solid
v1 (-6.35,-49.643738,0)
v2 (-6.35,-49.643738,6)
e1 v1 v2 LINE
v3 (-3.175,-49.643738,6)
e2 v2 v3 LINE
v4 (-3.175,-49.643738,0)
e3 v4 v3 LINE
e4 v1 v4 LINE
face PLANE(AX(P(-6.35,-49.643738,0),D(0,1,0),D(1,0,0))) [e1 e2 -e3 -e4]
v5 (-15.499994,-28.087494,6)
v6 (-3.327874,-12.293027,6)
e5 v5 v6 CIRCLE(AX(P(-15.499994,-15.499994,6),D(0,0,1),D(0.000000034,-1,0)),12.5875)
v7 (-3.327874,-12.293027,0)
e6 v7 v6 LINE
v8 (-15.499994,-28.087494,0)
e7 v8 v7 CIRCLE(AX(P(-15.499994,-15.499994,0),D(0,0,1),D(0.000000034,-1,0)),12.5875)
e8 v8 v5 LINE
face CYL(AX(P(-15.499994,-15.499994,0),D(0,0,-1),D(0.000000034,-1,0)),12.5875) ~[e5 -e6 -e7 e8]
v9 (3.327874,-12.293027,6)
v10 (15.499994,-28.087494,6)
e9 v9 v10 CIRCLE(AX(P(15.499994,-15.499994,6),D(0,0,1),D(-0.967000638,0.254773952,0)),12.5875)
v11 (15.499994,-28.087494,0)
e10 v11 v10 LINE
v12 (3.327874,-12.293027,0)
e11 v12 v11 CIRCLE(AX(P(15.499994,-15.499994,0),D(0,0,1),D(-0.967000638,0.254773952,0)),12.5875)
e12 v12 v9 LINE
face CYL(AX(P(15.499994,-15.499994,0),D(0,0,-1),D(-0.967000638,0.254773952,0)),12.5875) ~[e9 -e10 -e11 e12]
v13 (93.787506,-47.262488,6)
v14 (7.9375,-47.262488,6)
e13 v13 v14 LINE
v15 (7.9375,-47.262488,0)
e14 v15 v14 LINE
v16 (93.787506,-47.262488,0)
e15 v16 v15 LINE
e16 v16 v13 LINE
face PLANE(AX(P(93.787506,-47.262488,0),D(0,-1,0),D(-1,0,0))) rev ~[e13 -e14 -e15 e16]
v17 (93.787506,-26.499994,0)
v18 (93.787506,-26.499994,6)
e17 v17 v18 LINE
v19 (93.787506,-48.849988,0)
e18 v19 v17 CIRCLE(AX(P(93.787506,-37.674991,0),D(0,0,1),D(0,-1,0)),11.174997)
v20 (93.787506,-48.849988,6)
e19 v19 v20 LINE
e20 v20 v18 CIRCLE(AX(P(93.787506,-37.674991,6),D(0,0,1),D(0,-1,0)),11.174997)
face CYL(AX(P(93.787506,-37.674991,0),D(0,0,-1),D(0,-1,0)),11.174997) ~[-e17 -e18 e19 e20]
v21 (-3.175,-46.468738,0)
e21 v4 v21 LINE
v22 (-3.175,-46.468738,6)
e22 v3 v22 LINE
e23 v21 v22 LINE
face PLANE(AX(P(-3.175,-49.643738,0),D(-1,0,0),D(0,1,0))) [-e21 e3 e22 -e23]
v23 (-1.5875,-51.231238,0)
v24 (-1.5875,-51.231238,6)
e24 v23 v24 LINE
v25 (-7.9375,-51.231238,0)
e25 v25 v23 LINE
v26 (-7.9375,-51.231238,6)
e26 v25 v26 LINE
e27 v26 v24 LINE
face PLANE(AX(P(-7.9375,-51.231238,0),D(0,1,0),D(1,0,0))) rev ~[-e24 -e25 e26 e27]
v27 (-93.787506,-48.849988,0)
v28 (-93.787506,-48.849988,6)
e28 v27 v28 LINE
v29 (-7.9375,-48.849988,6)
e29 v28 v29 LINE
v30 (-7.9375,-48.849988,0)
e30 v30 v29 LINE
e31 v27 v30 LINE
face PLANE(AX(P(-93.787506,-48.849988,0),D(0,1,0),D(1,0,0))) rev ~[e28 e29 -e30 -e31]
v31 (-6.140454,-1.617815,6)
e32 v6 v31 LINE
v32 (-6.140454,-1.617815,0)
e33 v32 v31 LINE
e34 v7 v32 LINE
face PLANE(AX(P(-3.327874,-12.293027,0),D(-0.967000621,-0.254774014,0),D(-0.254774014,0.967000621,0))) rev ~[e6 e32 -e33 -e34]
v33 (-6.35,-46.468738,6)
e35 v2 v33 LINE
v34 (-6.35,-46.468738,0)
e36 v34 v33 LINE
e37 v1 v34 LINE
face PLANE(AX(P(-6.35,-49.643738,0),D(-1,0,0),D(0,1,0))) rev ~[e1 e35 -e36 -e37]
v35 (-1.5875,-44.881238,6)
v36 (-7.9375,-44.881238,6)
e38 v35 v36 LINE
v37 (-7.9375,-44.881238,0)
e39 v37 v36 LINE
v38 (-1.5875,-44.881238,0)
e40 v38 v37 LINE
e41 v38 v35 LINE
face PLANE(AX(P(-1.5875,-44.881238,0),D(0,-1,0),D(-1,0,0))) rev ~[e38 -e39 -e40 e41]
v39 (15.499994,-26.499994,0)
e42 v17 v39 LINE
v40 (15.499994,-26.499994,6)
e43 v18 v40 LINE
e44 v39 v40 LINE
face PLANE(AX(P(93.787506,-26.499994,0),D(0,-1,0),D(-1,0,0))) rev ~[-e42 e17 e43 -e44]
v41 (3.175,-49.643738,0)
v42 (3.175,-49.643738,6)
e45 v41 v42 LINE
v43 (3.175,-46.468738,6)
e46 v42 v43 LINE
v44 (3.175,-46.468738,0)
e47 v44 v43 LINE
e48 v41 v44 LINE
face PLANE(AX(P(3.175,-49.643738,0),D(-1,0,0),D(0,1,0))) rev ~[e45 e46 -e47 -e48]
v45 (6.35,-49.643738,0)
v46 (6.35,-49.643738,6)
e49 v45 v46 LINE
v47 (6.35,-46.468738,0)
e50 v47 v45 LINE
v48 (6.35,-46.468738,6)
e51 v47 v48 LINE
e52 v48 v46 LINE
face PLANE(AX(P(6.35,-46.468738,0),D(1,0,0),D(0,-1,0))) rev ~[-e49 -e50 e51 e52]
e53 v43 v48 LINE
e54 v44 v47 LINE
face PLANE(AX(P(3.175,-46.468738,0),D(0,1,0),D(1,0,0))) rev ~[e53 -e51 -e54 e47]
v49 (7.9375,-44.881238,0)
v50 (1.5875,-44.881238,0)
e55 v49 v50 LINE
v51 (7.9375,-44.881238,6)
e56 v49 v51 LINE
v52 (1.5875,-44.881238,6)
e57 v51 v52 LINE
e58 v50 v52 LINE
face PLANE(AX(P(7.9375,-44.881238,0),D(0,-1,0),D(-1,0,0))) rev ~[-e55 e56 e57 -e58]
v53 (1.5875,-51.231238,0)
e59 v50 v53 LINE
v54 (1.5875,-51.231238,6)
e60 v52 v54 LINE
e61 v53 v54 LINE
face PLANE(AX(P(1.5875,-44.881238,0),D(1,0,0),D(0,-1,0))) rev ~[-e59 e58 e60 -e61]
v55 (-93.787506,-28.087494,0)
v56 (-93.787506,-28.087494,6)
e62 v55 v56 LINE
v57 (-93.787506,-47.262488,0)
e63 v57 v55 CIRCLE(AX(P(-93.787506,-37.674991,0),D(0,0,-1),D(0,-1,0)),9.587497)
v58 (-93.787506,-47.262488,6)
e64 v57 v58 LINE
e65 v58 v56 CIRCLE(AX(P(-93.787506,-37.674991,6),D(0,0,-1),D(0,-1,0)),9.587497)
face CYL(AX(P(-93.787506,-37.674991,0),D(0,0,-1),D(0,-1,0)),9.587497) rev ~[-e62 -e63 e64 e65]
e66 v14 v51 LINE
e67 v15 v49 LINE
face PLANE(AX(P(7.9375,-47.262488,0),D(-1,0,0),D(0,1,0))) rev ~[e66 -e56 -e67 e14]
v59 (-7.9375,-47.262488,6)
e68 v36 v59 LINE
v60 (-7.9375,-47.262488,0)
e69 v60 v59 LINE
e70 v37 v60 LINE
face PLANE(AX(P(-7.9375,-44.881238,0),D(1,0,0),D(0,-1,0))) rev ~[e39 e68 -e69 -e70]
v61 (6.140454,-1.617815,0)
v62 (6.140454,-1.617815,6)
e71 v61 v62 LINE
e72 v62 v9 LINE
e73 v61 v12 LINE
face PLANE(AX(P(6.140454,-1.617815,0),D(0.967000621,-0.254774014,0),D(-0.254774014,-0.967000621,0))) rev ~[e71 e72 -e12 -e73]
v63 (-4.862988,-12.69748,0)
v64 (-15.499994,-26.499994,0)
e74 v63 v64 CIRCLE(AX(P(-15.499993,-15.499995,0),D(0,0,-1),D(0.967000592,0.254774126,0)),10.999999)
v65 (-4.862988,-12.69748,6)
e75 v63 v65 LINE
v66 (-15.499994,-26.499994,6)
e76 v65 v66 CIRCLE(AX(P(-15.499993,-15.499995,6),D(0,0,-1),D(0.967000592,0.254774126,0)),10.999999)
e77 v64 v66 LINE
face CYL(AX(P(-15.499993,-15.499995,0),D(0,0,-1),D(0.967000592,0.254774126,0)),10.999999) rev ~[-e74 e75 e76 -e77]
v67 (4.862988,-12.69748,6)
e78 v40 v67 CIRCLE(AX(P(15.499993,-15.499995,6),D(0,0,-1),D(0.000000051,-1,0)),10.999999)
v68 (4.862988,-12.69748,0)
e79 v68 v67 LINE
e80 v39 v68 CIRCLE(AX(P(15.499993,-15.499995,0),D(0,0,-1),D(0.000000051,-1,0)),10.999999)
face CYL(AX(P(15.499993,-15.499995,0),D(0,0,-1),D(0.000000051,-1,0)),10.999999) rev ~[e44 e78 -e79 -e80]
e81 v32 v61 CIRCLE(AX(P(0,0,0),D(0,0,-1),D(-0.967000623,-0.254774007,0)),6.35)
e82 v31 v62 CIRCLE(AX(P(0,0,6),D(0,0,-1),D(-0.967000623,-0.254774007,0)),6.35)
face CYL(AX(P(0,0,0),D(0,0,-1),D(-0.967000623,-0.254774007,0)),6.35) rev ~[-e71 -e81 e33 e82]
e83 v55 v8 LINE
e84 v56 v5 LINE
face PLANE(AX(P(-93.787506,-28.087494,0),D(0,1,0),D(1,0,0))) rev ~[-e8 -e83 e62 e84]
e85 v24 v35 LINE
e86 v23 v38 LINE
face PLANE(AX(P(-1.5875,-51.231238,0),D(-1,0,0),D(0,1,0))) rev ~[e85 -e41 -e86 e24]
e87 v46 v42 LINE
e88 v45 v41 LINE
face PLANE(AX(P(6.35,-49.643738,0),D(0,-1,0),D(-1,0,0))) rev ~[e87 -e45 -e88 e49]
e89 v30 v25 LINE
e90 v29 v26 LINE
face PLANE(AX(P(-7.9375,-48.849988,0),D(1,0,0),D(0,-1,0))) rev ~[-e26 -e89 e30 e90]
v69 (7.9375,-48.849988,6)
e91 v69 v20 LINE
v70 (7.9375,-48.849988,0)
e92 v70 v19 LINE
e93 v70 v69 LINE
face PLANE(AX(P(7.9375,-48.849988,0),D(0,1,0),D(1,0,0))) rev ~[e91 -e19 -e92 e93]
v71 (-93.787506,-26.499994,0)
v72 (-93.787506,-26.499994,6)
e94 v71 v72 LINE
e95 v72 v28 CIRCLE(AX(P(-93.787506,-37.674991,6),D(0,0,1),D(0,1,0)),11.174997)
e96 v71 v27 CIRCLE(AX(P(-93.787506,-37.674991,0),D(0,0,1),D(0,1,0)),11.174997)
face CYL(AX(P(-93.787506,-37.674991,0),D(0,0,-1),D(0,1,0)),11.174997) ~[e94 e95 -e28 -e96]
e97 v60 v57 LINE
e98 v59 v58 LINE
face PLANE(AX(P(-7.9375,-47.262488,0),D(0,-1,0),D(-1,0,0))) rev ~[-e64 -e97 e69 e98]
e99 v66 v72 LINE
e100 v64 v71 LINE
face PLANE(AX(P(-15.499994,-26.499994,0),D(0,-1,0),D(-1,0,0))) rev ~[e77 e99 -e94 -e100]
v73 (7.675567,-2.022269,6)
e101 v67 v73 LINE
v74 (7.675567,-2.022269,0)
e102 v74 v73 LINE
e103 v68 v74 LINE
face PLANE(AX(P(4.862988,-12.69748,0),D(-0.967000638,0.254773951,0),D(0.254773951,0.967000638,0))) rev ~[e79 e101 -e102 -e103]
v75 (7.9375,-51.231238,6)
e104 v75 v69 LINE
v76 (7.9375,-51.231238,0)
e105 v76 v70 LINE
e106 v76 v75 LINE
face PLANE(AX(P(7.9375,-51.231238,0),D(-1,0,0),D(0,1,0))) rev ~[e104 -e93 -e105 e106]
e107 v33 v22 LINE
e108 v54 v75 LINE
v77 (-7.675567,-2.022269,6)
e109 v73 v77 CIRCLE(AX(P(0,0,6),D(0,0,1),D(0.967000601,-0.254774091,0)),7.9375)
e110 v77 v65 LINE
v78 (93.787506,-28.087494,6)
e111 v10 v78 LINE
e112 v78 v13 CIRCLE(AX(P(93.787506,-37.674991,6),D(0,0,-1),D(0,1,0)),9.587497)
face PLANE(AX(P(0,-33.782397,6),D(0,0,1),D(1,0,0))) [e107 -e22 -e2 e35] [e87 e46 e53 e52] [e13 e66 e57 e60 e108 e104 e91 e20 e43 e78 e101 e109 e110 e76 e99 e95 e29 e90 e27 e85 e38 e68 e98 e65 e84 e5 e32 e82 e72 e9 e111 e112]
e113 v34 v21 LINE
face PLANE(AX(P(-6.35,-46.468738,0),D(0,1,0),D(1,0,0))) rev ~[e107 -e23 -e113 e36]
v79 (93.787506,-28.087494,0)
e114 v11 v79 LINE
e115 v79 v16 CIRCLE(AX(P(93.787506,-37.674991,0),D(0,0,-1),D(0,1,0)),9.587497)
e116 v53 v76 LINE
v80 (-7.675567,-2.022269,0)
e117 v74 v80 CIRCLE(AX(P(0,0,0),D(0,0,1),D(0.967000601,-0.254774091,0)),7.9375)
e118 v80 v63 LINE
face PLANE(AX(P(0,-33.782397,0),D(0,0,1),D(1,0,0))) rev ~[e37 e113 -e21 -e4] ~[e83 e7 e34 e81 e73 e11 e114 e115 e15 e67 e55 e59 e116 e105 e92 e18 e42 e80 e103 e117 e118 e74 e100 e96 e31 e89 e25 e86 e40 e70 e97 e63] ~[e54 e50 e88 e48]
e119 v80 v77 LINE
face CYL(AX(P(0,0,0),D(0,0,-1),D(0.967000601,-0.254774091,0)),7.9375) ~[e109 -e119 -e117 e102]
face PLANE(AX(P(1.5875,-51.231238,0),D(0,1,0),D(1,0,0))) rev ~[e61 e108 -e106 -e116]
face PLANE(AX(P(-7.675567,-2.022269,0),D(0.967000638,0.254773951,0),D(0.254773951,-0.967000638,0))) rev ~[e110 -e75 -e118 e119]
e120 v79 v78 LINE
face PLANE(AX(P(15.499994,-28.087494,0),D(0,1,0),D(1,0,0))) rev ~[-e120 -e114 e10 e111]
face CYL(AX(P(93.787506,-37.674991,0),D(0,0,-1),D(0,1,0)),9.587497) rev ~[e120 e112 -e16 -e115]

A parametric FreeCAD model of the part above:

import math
import FreeCAD as App
import Part
import Sketcher
from FreeCAD import Vector
Q = App.Units.Quantity

doc = App.newDocument("Part")
params = doc.addObject("Spreadsheet::Sheet", "Params")
for row, (alias, value) in enumerate([
    ("sketch1_radius", "0.25 in"),
    ("sketch1_radius2", "0.3125 in"),
    ("sketch1_width", "0.25 in"),
    ("sketch1_width2", "0.125 in"),
    ("pad1_length", "6 mm"),
], start=1):
    params.set(f"A{row}", alias)
    params.set(f"B{row}", "=" + value)
    params.setAlias(f"B{row}", alias)

body = doc.addObject("PartDesign::Body", "Body")

sketch1 = body.newObject("Sketcher::SketchObject", "Sketch")
sketch1.AttachmentSupport = (doc.getObject("XY_Plane"), [""])
sketch1.MapMode = "FlatFace"
sketch1.addGeometry([
    Part.ArcOfCircle(Part.Circle(Vector(0, 0, 0), Vector(0, 0, 1), 6.4), math.radians(-15), math.radians(195)),
    Part.LineSegment(Vector(6.1, -1.6, 0), Vector(3.3, -12.3, 0)),
    Part.ArcOfCircle(Part.Circle(Vector(15.5, -15.5, 0), Vector(0, 0, 1), 12.6), math.radians(165), math.radians(270)),
    Part.LineSegment(Vector(15.5, -28.1, 0), Vector(93.8, -28.1, 0)),
    Part.ArcOfCircle(Part.Circle(Vector(93.8, -37.7, 0), Vector(0, 0, 1), 9.6), math.radians(-90), math.radians(90)),
    Part.LineSegment(Vector(93.8, -47.3, 0), Vector(7.9, -47.3, 0)),
    Part.LineSegment(Vector(7.9, -47.3, 0), Vector(7.9, -44.9, 0)),
    Part.LineSegment(Vector(7.9, -44.9, 0), Vector(1.6, -44.9, 0)),
    Part.LineSegment(Vector(1.6, -44.9, 0), Vector(1.6, -51.2, 0)),
    Part.LineSegment(Vector(1.6, -51.2, 0), Vector(7.9, -51.2, 0)),
    Part.LineSegment(Vector(7.9, -51.2, 0), Vector(7.9, -48.8, 0)),
    Part.LineSegment(Vector(7.9, -48.8, 0), Vector(93.8, -48.8, 0)),
    Part.ArcOfCircle(Part.Circle(Vector(93.8, -37.7, 0), Vector(0, 0, 1), 11.2), math.radians(-90), math.radians(90)),
    Part.LineSegment(Vector(93.8, -26.5, 0), Vector(15.5, -26.5, 0)),
    Part.ArcOfCircle(Part.Circle(Vector(15.5, -15.5, 0), Vector(0, 0, 1), 11), math.radians(165), math.radians(270)),
    Part.LineSegment(Vector(4.9, -12.7, 0), Vector(7.7, -2, 0)),
    Part.ArcOfCircle(Part.Circle(Vector(0, 0, 0), Vector(0, 0, 1), 7.9), math.radians(-15), math.radians(195)),
    Part.LineSegment(Vector(-7.7, -2, 0), Vector(-4.9, -12.7, 0)),
    Part.ArcOfCircle(Part.Circle(Vector(-15.5, -15.5, 0), Vector(0, 0, 1), 11), math.radians(-90), math.radians(15)),
    Part.LineSegment(Vector(-15.5, -26.5, 0), Vector(-93.8, -26.5, 0)),
    Part.ArcOfCircle(Part.Circle(Vector(-93.8, -37.7, 0), Vector(0, 0, 1), 11.2), math.radians(90), math.radians(270)),
    Part.LineSegment(Vector(-93.8, -48.8, 0), Vector(-7.9, -48.8, 0)),
    Part.LineSegment(Vector(-7.9, -48.8, 0), Vector(-7.9, -51.2, 0)),
    Part.LineSegment(Vector(-7.9, -51.2, 0), Vector(-1.6, -51.2, 0)),
    Part.LineSegment(Vector(-1.6, -51.2, 0), Vector(-1.6, -44.9, 0)),
    Part.LineSegment(Vector(-1.6, -44.9, 0), Vector(-7.9, -44.9, 0)),
    Part.LineSegment(Vector(-7.9, -44.9, 0), Vector(-7.9, -47.3, 0)),
    Part.LineSegment(Vector(-7.9, -47.3, 0), Vector(-93.8, -47.3, 0)),
    Part.ArcOfCircle(Part.Circle(Vector(-93.8, -37.7, 0), Vector(0, 0, 1), 9.6), math.radians(90), math.radians(270)),
    Part.LineSegment(Vector(-93.8, -28.1, 0), Vector(-15.5, -28.1, 0)),
    Part.ArcOfCircle(Part.Circle(Vector(-15.5, -15.5, 0), Vector(0, 0, 1), 12.6), math.radians(-90), math.radians(15)),
    Part.LineSegment(Vector(-3.3, -12.3, 0), Vector(-6.1, -1.6, 0)),
    Part.LineSegment(Vector(-3.2, -49.6, 0), Vector(-6.3, -49.6, 0)),
    Part.LineSegment(Vector(-6.3, -49.6, 0), Vector(-6.3, -46.5, 0)),
    Part.LineSegment(Vector(-6.3, -46.5, 0), Vector(-3.2, -46.5, 0)),
    Part.LineSegment(Vector(-3.2, -46.5, 0), Vector(-3.2, -49.6, 0)),
    Part.LineSegment(Vector(3.2, -49.6, 0), Vector(3.2, -46.5, 0)),
    Part.LineSegment(Vector(3.2, -46.5, 0), Vector(6.3, -46.5, 0)),
    Part.LineSegment(Vector(6.3, -46.5, 0), Vector(6.3, -49.6, 0)),
    Part.LineSegment(Vector(6.3, -49.6, 0), Vector(3.2, -49.6, 0)),
], False)
sketch1.addConstraint([
    Sketcher.Constraint("Tangent", 0, 1, 1, 1),
    Sketcher.Constraint("Tangent", 1, 2, 2, 1),
    Sketcher.Constraint("Tangent", 2, 2, 3, 1),
    Sketcher.Constraint("Tangent", 3, 2, 4, 2),
    Sketcher.Constraint("Tangent", 4, 1, 5, 1),
    Sketcher.Constraint("Coincident", 5, 2, 6, 1),
    Sketcher.Constraint("Coincident", 6, 2, 7, 1),
    Sketcher.Constraint("Coincident", 7, 2, 8, 1),
    Sketcher.Constraint("Coincident", 8, 2, 9, 1),
    Sketcher.Constraint("Coincident", 9, 2, 10, 1),
    Sketcher.Constraint("Coincident", 10, 2, 11, 1),
    Sketcher.Constraint("Tangent", 11, 2, 12, 1),
    Sketcher.Constraint("Tangent", 12, 2, 13, 1),
    Sketcher.Constraint("Tangent", 13, 2, 14, 2),
    Sketcher.Constraint("Tangent", 14, 1, 15, 1),
    Sketcher.Constraint("Tangent", 15, 2, 16, 1),
    Sketcher.Constraint("Tangent", 16, 2, 17, 1),
    Sketcher.Constraint("Tangent", 17, 2, 18, 2),
    Sketcher.Constraint("Tangent", 18, 1, 19, 1),
    Sketcher.Constraint("Tangent", 19, 2, 20, 1),
    Sketcher.Constraint("Tangent", 20, 2, 21, 1),
    Sketcher.Constraint("Coincident", 21, 2, 22, 1),
    Sketcher.Constraint("Coincident", 22, 2, 23, 1),
    Sketcher.Constraint("Coincident", 23, 2, 24, 1),
    Sketcher.Constraint("Coincident", 24, 2, 25, 1),
    Sketcher.Constraint("Coincident", 25, 2, 26, 1),
    Sketcher.Constraint("Coincident", 26, 2, 27, 1),
    Sketcher.Constraint("Tangent", 27, 2, 28, 2),
    Sketcher.Constraint("Tangent", 28, 1, 29, 1),
    Sketcher.Constraint("Tangent", 29, 2, 30, 1),
    Sketcher.Constraint("Tangent", 30, 2, 31, 1),
    Sketcher.Constraint("Tangent", 31, 2, 0, 2),
    Sketcher.Constraint("Coincident", 32, 2, 33, 1),
    Sketcher.Constraint("Coincident", 33, 2, 34, 1),
    Sketcher.Constraint("Coincident", 34, 2, 35, 1),
    Sketcher.Constraint("Coincident", 35, 2, 32, 1),
    Sketcher.Constraint("Coincident", 36, 2, 37, 1),
    Sketcher.Constraint("Coincident", 37, 2, 38, 1),
    Sketcher.Constraint("Coincident", 38, 2, 39, 1),
    Sketcher.Constraint("Coincident", 39, 2, 36, 1),
    Sketcher.Constraint("Horizontal", 3),
    Sketcher.Constraint("Horizontal", 5),
    Sketcher.Constraint("Vertical", 6),
    Sketcher.Constraint("Horizontal", 7),
    Sketcher.Constraint("Vertical", 8),
    Sketcher.Constraint("Horizontal", 9),
    Sketcher.Constraint("Vertical", 10),
    Sketcher.Constraint("Horizontal", 11),
    Sketcher.Constraint("Horizontal", 13),
    Sketcher.Constraint("Horizontal", 19),
    Sketcher.Constraint("Horizontal", 21),
    Sketcher.Constraint("Vertical", 22),
    Sketcher.Constraint("Horizontal", 23),
    Sketcher.Constraint("Vertical", 24),
    Sketcher.Constraint("Horizontal", 25),
    Sketcher.Constraint("Vertical", 26),
    Sketcher.Constraint("Horizontal", 27),
    Sketcher.Constraint("Horizontal", 29),
    Sketcher.Constraint("Horizontal", 32),
    Sketcher.Constraint("Vertical", 33),
    Sketcher.Constraint("Horizontal", 34),
    Sketcher.Constraint("Vertical", 35),
    Sketcher.Constraint("Vertical", 36),
    Sketcher.Constraint("Horizontal", 37),
    Sketcher.Constraint("Vertical", 38),
    Sketcher.Constraint("Horizontal", 39),
    Sketcher.Constraint("Coincident", 0, 3, -1, 1),
    Sketcher.Constraint("Coincident", 16, 3, -1, 1),
    Sketcher.Constraint("Coincident", 12, 3, 4, 3),
    Sketcher.Constraint("Coincident", 14, 3, 2, 3),
    Sketcher.Constraint("Coincident", 28, 3, 20, 3),
    Sketcher.Constraint("Coincident", 30, 3, 18, 3),
    Sketcher.Constraint("Equal", 14, 18),
    Sketcher.Constraint("Equal", 12, 20),
    Sketcher.Constraint("Equal", 4, 28),
    Sketcher.Constraint("Symmetric", 2, 3, 18, 3, -2),
    Sketcher.Constraint("Symmetric", 9, 2, 22, 2, -2),
    Sketcher.Constraint("Symmetric", 7, 2, 24, 2, -2),
    Sketcher.Constraint("Symmetric", 34, 2, 36, 2, -2),
    Sketcher.Constraint("Symmetric", 32, 2, 38, 2, -2),
    Sketcher.Constraint("Parallel", 1, 15),
    Sketcher.Constraint("Vertical", 6, 2, 9, 2),
    Sketcher.Constraint("Vertical", 22, 2, 25, 2),
    Sketcher.Constraint("Equal", 13, 19),
    Sketcher.Constraint("Equal", 25, 8),
    Sketcher.Constraint("Equal", 6, 10),
    Sketcher.Constraint("Equal", 39, 33),
    Sketcher.Constraint("Radius", 0, Q("0.25 in")),
    Sketcher.Constraint("Radius", 16, Q("0.3125 in")),
    Sketcher.Constraint("DistanceX", 7, 2, 7, 1, Q("0.25 in")),
    Sketcher.Constraint("DistanceX", 32, 2, 32, 1, Q("0.125 in")),
    Sketcher.Constraint("DistanceX", 32, 2, -1, 1, Q("0.25 in")),
    Sketcher.Constraint("Radius", 2, 12.5875),
    Sketcher.Constraint("DistanceX", -1, 1, 5, 2, Q("0.3125 in")),
    Sketcher.Constraint("DistanceY", 32, 2, 21, 2, Q("0.03125 in")),
    Sketcher.Constraint("Radius", 4, 9.587497),
    Sketcher.Constraint("DistanceX", 3, 1, 3, 2, 78.287512),
    Sketcher.Constraint("DistanceX", 18, 3, 4, 3, 109.287499),
    Sketcher.Constraint("Distance", 1, 11.039509),
])
sketch1.setExpression("Constraints[87]", "Params.sketch1_radius")
sketch1.setExpression("Constraints[88]", "Params.sketch1_radius2")
sketch1.setExpression("Constraints[89]", "Params.sketch1_width")
sketch1.setExpression("Constraints[90]", "Params.sketch1_width2")
pad1 = body.newObject("PartDesign::Pad", "Pad")
pad1.Profile = sketch1
pad1.setExpression("Length", "Params.pad1_length")

doc.recompute()
